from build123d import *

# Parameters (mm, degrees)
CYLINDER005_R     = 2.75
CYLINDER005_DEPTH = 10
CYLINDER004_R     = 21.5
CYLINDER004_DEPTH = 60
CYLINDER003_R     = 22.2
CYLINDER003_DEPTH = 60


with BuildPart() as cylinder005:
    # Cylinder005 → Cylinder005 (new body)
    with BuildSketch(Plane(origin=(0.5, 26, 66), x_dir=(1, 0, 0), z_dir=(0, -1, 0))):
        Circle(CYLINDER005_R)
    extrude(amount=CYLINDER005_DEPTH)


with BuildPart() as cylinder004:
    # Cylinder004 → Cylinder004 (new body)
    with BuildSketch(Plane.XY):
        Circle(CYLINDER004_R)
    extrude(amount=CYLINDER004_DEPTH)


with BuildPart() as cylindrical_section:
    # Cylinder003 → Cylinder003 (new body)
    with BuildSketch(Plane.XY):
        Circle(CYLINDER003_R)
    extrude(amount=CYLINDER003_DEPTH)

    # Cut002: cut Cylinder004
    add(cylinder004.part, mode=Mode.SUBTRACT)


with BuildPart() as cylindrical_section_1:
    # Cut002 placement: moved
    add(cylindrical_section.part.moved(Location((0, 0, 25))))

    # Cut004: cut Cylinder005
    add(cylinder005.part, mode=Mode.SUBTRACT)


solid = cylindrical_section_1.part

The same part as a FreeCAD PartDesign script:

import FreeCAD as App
import Part
import Sketcher
from FreeCAD import Vector
Q = App.Units.Quantity

doc = App.newDocument("Part")
body = doc.addObject("PartDesign::Body", "Body")

# Sketch on XZ plane
sketch1 = body.newObject("Sketcher::SketchObject", "Sketch")
sketch1.AttachmentSupport = (doc.getObject("XZ_Plane"), [""])
sketch1.MapMode = "FlatFace"
sketch1.AttachmentOffset = App.Placement(Vector(0, 0, -26), App.Rotation())
sketch1.addGeometry(Part.Circle(Vector(0.5, 66, 0), Vector(0, 0, 1), 2.8), False)
sketch1.addConstraint([
    Sketcher.Constraint("Diameter", 0, Q("5.5 mm")),
    Sketcher.Constraint("DistanceY", -1, 1, 0, 3, Q("66 mm")),
    Sketcher.Constraint("DistanceX", -1, 1, 0, 3, Q("0.5 mm")),
])
pad1 = body.newObject("PartDesign::Pad", "Pad")
pad1.Profile = sketch1
pad1.Length = 10
body2 = doc.addObject("PartDesign::Body", "Body001")

# Sketch on XY plane
sketch2 = body2.newObject("Sketcher::SketchObject", "Sketch001")
sketch2.AttachmentSupport = (doc.getObject("XY_Plane001"), [""])
sketch2.MapMode = "FlatFace"
sketch2.addGeometry(Part.Circle(Vector(0, 0, 0), Vector(0, 0, 1), 22), False)
sketch2.addConstraint([
    Sketcher.Constraint("Coincident", 0, 3, -1, 1),
    Sketcher.Constraint("Diameter", 0, Q("43 mm")),
])
pad2 = body2.newObject("PartDesign::Pad", "Pad001")
pad2.Profile = sketch2
pad2.Length = 60
body3 = doc.addObject("PartDesign::Body", "Body002")

# Sketch on XY plane
sketch3 = body3.newObject("Sketcher::SketchObject", "Sketch002")
sketch3.AttachmentSupport = (doc.getObject("XY_Plane002"), [""])
sketch3.MapMode = "FlatFace"
sketch3.addGeometry(Part.Circle(Vector(0, 0, 0), Vector(0, 0, 1), 22), False)
sketch3.addConstraint([
    Sketcher.Constraint("Coincident", 0, 3, -1, 1),
    Sketcher.Constraint("Diameter", 0, Q("44.4 mm")),
])
pad3 = body3.newObject("PartDesign::Pad", "Pad002")
pad3.Profile = sketch3
pad3.Length = 60
doc.recompute()

boolean = body3.newObject("PartDesign::Boolean", "Boolean")
boolean.Type = "Cut"
boolean.addObjects([body2])
body4 = doc.addObject("PartDesign::Body", "Body003")
doc.recompute()

body3.Placement = App.Placement(Vector(0, 0, 25), App.Rotation(Vector(0, 0, 1), 0))
boolean2 = body4.newObject("PartDesign::Boolean", "Boolean001")
boolean2.Type = "Fuse"
boolean2.addObjects([body3])
doc.recompute()

boolean3 = body4.newObject("PartDesign::Boolean", "Boolean002")
boolean3.Type = "Cut"
boolean3.addObjects([body])

doc.recompute()
